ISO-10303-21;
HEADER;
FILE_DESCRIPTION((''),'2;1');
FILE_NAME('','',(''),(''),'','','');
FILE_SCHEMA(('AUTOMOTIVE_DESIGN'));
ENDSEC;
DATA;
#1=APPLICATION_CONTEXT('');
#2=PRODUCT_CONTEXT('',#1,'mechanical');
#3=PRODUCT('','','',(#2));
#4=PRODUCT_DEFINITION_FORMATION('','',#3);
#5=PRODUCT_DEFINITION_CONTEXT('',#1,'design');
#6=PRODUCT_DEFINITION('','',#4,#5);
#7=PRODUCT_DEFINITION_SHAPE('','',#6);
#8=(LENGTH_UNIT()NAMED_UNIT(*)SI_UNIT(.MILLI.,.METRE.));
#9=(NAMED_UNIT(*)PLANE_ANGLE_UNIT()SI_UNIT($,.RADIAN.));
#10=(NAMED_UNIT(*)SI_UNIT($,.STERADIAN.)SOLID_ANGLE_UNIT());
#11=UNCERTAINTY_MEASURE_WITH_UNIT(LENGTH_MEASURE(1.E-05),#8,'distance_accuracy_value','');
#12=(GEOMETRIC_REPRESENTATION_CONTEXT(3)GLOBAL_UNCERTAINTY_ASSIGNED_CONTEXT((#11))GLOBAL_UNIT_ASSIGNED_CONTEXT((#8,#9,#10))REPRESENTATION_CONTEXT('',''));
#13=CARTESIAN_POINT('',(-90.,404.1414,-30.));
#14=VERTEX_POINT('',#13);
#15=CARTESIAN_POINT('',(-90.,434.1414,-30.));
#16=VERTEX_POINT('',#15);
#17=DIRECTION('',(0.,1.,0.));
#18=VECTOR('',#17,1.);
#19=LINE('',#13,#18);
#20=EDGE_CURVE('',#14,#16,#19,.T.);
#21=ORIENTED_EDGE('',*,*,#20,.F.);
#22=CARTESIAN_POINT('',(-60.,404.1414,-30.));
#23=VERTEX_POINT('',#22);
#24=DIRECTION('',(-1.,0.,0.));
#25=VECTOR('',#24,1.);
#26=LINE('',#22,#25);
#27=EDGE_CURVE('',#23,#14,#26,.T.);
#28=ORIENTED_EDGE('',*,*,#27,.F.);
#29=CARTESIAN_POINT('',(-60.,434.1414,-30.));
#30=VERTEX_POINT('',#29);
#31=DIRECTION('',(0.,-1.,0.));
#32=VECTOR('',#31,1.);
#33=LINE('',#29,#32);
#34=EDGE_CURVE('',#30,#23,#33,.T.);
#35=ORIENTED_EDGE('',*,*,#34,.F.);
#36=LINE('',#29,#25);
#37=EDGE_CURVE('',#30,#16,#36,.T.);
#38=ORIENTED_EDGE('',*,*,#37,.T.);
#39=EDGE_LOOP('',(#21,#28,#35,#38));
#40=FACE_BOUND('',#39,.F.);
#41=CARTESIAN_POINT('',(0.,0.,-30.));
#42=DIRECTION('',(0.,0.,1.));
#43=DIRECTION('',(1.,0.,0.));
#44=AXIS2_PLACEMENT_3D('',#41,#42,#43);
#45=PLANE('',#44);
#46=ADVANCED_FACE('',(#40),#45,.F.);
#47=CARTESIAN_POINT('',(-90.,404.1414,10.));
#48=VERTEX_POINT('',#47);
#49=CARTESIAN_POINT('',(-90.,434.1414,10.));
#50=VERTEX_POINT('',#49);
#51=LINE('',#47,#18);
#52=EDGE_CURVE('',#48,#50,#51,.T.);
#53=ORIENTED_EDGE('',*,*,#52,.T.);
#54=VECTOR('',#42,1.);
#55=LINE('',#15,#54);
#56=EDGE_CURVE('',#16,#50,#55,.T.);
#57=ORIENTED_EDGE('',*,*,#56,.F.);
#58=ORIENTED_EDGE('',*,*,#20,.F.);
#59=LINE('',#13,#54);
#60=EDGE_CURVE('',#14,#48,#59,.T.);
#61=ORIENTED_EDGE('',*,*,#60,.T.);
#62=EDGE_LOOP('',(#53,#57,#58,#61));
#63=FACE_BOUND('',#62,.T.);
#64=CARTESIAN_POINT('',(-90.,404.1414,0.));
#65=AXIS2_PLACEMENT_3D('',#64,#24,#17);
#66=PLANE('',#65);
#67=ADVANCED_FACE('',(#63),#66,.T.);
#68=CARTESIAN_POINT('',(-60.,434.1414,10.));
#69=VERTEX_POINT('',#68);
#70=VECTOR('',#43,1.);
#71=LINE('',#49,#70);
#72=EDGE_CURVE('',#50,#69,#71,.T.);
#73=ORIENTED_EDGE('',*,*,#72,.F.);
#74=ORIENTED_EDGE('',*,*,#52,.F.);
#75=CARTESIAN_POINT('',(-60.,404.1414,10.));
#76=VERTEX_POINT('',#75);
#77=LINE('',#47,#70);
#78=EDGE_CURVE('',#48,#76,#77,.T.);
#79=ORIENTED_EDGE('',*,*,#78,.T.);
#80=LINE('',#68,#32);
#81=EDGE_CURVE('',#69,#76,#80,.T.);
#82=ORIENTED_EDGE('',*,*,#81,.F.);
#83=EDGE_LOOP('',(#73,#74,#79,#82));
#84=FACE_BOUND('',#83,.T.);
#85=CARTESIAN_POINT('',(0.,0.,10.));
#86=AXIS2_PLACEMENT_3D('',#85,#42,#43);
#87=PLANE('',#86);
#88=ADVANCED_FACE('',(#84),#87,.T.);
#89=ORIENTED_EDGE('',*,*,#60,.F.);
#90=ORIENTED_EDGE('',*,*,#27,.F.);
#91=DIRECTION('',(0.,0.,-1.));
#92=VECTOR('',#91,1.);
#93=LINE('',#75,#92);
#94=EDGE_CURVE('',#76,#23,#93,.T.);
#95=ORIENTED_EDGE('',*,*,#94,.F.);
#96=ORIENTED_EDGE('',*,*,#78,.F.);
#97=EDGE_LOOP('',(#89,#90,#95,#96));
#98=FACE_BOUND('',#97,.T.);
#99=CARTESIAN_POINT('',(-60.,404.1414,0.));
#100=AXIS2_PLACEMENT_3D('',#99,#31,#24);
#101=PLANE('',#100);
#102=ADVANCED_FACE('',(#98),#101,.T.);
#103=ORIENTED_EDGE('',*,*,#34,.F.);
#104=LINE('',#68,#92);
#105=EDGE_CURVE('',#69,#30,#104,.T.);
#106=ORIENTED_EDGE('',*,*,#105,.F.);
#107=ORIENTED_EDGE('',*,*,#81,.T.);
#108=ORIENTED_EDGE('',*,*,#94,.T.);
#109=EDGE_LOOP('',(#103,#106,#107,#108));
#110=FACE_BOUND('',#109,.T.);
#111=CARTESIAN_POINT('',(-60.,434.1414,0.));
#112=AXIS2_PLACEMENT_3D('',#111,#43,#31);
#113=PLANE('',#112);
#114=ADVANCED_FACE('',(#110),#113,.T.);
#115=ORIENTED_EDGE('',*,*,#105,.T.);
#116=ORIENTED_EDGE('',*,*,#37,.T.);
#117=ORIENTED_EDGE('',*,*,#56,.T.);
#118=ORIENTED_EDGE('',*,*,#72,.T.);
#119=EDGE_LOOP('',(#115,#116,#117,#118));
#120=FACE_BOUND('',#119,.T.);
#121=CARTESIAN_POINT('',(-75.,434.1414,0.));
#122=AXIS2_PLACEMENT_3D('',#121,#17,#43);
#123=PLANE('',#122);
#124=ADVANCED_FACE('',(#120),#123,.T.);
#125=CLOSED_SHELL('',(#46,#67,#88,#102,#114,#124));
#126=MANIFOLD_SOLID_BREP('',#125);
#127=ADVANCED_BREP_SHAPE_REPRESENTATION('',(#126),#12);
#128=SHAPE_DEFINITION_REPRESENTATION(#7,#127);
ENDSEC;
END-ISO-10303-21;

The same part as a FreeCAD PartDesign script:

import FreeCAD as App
import Part
import Sketcher
Q = App.Units.Quantity


def add_polygon(sketch, points):
    """Adds a closed chain of lines whose ends are joined by coincident constraints."""
    first, n = sketch.GeometryCount, len(points)
    for a, b in zip(points, points[1:] + points[:1]):
        sketch.addGeometry(Part.LineSegment(App.Vector(*a, 0), App.Vector(*b, 0)), False)
    for i in range(n):
        sketch.addConstraint(Sketcher.Constraint("Coincident", first + i, 2, first + (i + 1) % n, 1))

doc = App.newDocument("Part")
body = doc.addObject("PartDesign::Body", "Body")

sketch1 = body.newObject("Sketcher::SketchObject", "Sketch")
sketch1.AttachmentSupport = (doc.getObject("XY_Plane"), [""])
sketch1.MapMode = "FlatFace"
add_polygon(sketch1, [(-60, 434), (-90, 434), (-90, 404), (-60, 404)])
sketch1.addConstraint(Sketcher.Constraint("Horizontal", 0))
sketch1.addConstraint(Sketcher.Constraint("Vertical", 1))
sketch1.addConstraint(Sketcher.Constraint("Horizontal", 2))
sketch1.addConstraint(Sketcher.Constraint("Vertical", 3))
sketch1.addConstraint(Sketcher.Constraint("Equal", 2, 1))
sketch1.addConstraint(Sketcher.Constraint("DistanceX", 0, 2, 0, 1, Q("30 mm")))
sketch1.addConstraint(Sketcher.Constraint("DistanceX", 0, 2, -1, 1, Q("90 mm")))
sketch1.addConstraint(Sketcher.Constraint("DistanceY", -1, 1, 0, 2, Q("434.1414 mm")))
pad1 = body.newObject("PartDesign::Pad", "Pad")
pad1.Profile = sketch1
pad1.Type = "TwoLengths"
pad1.Length = 10
pad1.Length2 = 30

doc.recompute()
